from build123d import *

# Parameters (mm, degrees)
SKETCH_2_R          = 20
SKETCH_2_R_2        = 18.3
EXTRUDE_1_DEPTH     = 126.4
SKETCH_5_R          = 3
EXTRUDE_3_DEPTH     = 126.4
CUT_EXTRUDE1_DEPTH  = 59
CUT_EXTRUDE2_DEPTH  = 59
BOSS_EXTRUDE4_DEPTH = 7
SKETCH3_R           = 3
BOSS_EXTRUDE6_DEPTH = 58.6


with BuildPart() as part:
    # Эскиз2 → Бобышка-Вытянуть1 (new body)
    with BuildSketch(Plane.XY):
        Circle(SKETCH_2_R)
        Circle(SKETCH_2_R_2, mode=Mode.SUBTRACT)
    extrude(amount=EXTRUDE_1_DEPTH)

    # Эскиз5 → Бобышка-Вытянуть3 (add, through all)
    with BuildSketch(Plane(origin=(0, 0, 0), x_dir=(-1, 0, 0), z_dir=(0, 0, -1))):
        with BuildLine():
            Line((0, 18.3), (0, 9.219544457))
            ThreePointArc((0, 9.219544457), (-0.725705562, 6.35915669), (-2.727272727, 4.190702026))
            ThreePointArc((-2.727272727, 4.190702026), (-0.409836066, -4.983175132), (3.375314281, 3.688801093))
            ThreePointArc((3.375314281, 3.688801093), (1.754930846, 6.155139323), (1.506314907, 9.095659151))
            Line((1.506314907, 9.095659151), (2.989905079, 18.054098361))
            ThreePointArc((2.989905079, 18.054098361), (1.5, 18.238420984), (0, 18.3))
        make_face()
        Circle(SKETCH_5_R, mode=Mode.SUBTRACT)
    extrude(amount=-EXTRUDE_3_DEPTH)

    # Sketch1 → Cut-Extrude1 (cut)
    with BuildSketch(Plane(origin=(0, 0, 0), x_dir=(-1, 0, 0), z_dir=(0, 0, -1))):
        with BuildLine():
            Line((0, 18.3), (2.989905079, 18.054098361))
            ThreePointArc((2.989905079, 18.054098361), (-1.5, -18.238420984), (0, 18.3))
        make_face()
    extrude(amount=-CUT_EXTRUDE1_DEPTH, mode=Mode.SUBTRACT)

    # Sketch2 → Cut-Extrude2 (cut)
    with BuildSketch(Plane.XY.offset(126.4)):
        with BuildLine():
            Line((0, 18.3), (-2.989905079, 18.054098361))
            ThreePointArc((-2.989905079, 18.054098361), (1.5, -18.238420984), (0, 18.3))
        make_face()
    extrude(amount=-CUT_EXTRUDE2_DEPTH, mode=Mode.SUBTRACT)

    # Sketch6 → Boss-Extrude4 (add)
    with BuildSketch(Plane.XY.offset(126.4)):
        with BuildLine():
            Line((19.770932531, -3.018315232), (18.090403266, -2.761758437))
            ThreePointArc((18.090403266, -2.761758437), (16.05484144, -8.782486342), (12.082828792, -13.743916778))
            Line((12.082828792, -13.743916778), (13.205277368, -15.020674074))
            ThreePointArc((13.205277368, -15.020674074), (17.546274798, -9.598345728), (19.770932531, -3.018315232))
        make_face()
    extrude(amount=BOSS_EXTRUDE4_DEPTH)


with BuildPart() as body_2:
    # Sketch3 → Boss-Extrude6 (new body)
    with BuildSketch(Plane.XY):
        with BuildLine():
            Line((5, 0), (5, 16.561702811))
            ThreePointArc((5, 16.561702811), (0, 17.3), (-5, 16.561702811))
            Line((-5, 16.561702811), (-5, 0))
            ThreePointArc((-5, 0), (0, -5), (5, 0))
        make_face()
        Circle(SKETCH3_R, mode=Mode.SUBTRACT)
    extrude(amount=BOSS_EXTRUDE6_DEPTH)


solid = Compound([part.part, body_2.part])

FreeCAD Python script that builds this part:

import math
import FreeCAD as App
import Part
import Sketcher
Q = App.Units.Quantity

doc = App.newDocument("Part")
body = doc.addObject("PartDesign::Body", "Body")

sketch1 = doc.addObject("Sketcher::SketchObject", "Sketch")
body.addObject(sketch1)
sketch1.AttachmentSupport = (doc.XY_Plane, [""])
sketch1.MapMode = "FlatFace"
sketch1.addGeometry([
    Part.Circle(App.Vector(0, 0, 0), App.Vector(0, 0, 1), 20),
    Part.Circle(App.Vector(0, 0, 0), App.Vector(0, 0, 1), 18),
], False)
sketch1.addConstraint([
    Sketcher.Constraint("Coincident", 0, 3, -1, 1),
    Sketcher.Constraint("Coincident", 1, 3, -1, 1),
    Sketcher.Constraint("Diameter", 0, Q("40 mm")),
    Sketcher.Constraint("Diameter", 1, Q("36.6 mm")),
])
pad1 = doc.addObject("PartDesign::Pad", "Pad")
body.addObject(pad1)
pad1.Profile = sketch1
pad1.Length = 126.4

sketch2 = doc.addObject("Sketcher::SketchObject", "Sketch001")
body.addObject(sketch2)
sketch2.AttachmentSupport = (doc.XY_Plane, [""])
sketch2.MapMode = "FlatFace"
sketch2.addGeometry([
    Part.LineSegment(App.Vector(0, 18.3, 0), App.Vector(0, 9.2, 0)),
    Part.ArcOfCircle(Part.Circle(App.Vector(6, 9.2, 0), App.Vector(0, 0, 1), 6), math.radians(-180), math.radians(-123)),
    Part.ArcOfCircle(Part.Circle(App.Vector(0, 0, 0), App.Vector(0, 0, 1), 5), math.radians(132), math.radians(417)),
    Part.ArcOfCircle(Part.Circle(App.Vector(-7.4, 8.1, 0), App.Vector(0, 0, 1), 6), math.radians(-48), math.radians(9)),
    Part.LineSegment(App.Vector(-1.5, 9.1, 0), App.Vector(-3, 18.1, 0)),
    Part.ArcOfCircle(Part.Circle(App.Vector(0, 0, 0), App.Vector(0, 0, 1), 18.3), math.radians(90), math.radians(99.4)),
    Part.Circle(App.Vector(0, 0, 0), App.Vector(0, 0, 1), 3),
], False)
sketch2.addConstraint([
    Sketcher.Constraint("Tangent", 0, 2, 1, 1),
    Sketcher.Constraint("Tangent", 1, 2, 2, 2),
    Sketcher.Constraint("Tangent", 2, 1, 3, 1),
    Sketcher.Constraint("Tangent", 3, 2, 4, 1),
    Sketcher.Constraint("Coincident", 4, 2, 5, 2),
    Sketcher.Constraint("Coincident", 5, 1, 0, 1),
    Sketcher.Constraint("Vertical", 0),
    Sketcher.Constraint("Coincident", 2, 3, -1, 1),
    Sketcher.Constraint("Coincident", 5, 3, -1, 1),
    Sketcher.Constraint("Coincident", 6, 3, -1, 1),
    Sketcher.Constraint("Equal", 1, 3),
    Sketcher.Constraint("PointOnObject", 0, 2, -2),
    Sketcher.Constraint("Diameter", 6, Q("6 mm")),
    Sketcher.Constraint("Radius", 1, Q("6 mm")),
    Sketcher.Constraint("Radius", 2, Q("5 mm")),
    Sketcher.Constraint("Radius", 5, Q("18.3 mm")),
    Sketcher.Constraint("DistanceX", 2, 1, 3, 2, Q("1.868999 mm")),
    Sketcher.Constraint("DistanceY", -1, 1, 2, 1, Q("3.688801 mm")),
])
pad2 = doc.addObject("PartDesign::Pad", "Pad001")
body.addObject(pad2)
pad2.Profile = sketch2
pad2.Length = 126.4

sketch3 = doc.addObject("Sketcher::SketchObject", "Sketch002")
body.addObject(sketch3)
sketch3.AttachmentSupport = (doc.XY_Plane, [""])
sketch3.MapMode = "FlatFace"
sketch3.addGeometry([
    Part.LineSegment(App.Vector(-3, 18.1, 0), App.Vector(0, 18.3, 0)),
    Part.ArcOfCircle(Part.Circle(App.Vector(0, 0, 0), App.Vector(0, 0, 1), 18.3), math.radians(99), math.radians(450)),
], False)
sketch3.addConstraint([
    Sketcher.Constraint("Coincident", 0, 1, 1, 1),
    Sketcher.Constraint("Coincident", 1, 2, 0, 2),
    Sketcher.Constraint("Coincident", 1, 3, -1, 1),
    Sketcher.Constraint("PointOnObject", 1, 2, -2),
    Sketcher.Constraint("Radius", 1, Q("18.3 mm")),
    Sketcher.Constraint("Distance", 0, Q("3 mm")),
])
pocket1 = doc.addObject("PartDesign::Pocket", "Pocket")
body.addObject(pocket1)
pocket1.Profile = sketch3
pocket1.Length = 59
pocket1.Reversed = True

sketch4 = doc.addObject("Sketcher::SketchObject", "Sketch003")
body.addObject(sketch4)
sketch4.AttachmentSupport = (doc.XY_Plane, [""])
sketch4.MapMode = "FlatFace"
sketch4.AttachmentOffset = App.Placement(App.Vector(0, 0, 126.4), App.Rotation())
sketch4.addGeometry([
    Part.LineSegment(App.Vector(0, 18.3, 0), App.Vector(-3, 18.1, 0)),
    Part.ArcOfCircle(Part.Circle(App.Vector(0, 0, 0), App.Vector(0, 0, 1), 18.3), math.radians(99), math.radians(450)),
], False)
sketch4.addConstraint([
    Sketcher.Constraint("Coincident", 0, 1, 1, 2),
    Sketcher.Constraint("Coincident", 1, 1, 0, 2),
    Sketcher.Constraint("Coincident", 1, 3, -1, 1),
    Sketcher.Constraint("PointOnObject", 0, 1, -2),
    Sketcher.Constraint("Radius", 1, Q("18.3 mm")),
    Sketcher.Constraint("Distance", 0, Q("3 mm")),
])
pocket2 = doc.addObject("PartDesign::Pocket", "Pocket001")
body.addObject(pocket2)
pocket2.Profile = sketch4
pocket2.Length = 59

sketch5 = doc.addObject("Sketcher::SketchObject", "Sketch004")
body.addObject(sketch5)
sketch5.AttachmentSupport = (doc.XY_Plane, [""])
sketch5.MapMode = "FlatFace"
sketch5.AttachmentOffset = App.Placement(App.Vector(0, 0, 126.4), App.Rotation())
sketch5.addGeometry([
    Part.LineSegment(App.Vector(19.8, -3, 0), App.Vector(18.1, -2.8, 0)),
    Part.ArcOfCircle(Part.Circle(App.Vector(0, 0, 0), App.Vector(0, 0, 1), 18.3), math.radians(-49), math.radians(-9)),
    Part.LineSegment(App.Vector(12.1, -13.7, 0), App.Vector(13.2, -15, 0)),
    Part.ArcOfCircle(Part.Circle(App.Vector(0, 0, 0), App.Vector(0, 0, 1), 20), math.radians(-49), math.radians(-9)),
], False)
sketch5.addConstraint([
    Sketcher.Constraint("Coincident", 0, 2, 1, 2),
    Sketcher.Constraint("Coincident", 1, 1, 2, 1),
    Sketcher.Constraint("Coincident", 2, 2, 3, 1),
    Sketcher.Constraint("Coincident", 3, 2, 0, 1),
    Sketcher.Constraint("Coincident", 1, 3, -1, 1),
    Sketcher.Constraint("Coincident", 3, 3, -1, 1),
    Sketcher.Constraint("Radius", 3, Q("20 mm")),
    Sketcher.Constraint("Radius", 1, Q("18.3 mm")),
    Sketcher.Constraint("Angle", 0, Q("171.32 deg")),
    Sketcher.Constraint("Angle", 2, Q("-48.68 deg")),
    Sketcher.Constraint("DistanceY", 1, 1, 3, 2, Q("10.725602 mm")),
    Sketcher.Constraint("DistanceY", 0, 2, -1, 1, Q("2.761758 mm")),
])
pad3 = doc.addObject("PartDesign::Pad", "Pad002")
body.addObject(pad3)
pad3.Profile = sketch5
pad3.Length = 7
body2 = doc.addObject("PartDesign::Body", "Body001")

sketch6 = doc.addObject("Sketcher::SketchObject", "Sketch005")
body2.addObject(sketch6)
sketch6.AttachmentSupport = (doc.getObject("XY_Plane001"), [""])
sketch6.MapMode = "FlatFace"
sketch6.addGeometry([
    Part.LineSegment(App.Vector(5, 0, 0), App.Vector(5, 16.6, 0)),
    Part.ArcOfCircle(Part.Circle(App.Vector(0, 0, 0), App.Vector(0, 0, 1), 17.3), math.radians(73), math.radians(107)),
    Part.LineSegment(App.Vector(-5, 16.6, 0), App.Vector(-5, 0, 0)),
    Part.ArcOfCircle(Part.Circle(App.Vector(0, 0, 0), App.Vector(0, 0, 1), 5), math.radians(180), math.radians(360)),
    Part.Circle(App.Vector(0, 0, 0), App.Vector(0, 0, 1), 3),
], False)
sketch6.addConstraint([
    Sketcher.Constraint("Coincident", 0, 2, 1, 1),
    Sketcher.Constraint("Coincident", 1, 2, 2, 1),
    Sketcher.Constraint("Tangent", 2, 2, 3, 1),
    Sketcher.Constraint("Tangent", 3, 2, 0, 1),
    Sketcher.Constraint("Vertical", 0),
    Sketcher.Constraint("Vertical", 2),
    Sketcher.Constraint("Coincident", 1, 3, -1, 1),
    Sketcher.Constraint("Coincident", 3, 3, -1, 1),
    Sketcher.Constraint("Coincident", 4, 3, -1, 1),
    Sketcher.Constraint("Diameter", 4, Q("6 mm")),
    Sketcher.Constraint("Radius", 3, Q("5 mm")),
    Sketcher.Constraint("Radius", 1, Q("17.3 mm")),
])
pad4 = doc.addObject("PartDesign::Pad", "Pad003")
body2.addObject(pad4)
pad4.Profile = sketch6
pad4.Length = 58.6

doc.recompute()
